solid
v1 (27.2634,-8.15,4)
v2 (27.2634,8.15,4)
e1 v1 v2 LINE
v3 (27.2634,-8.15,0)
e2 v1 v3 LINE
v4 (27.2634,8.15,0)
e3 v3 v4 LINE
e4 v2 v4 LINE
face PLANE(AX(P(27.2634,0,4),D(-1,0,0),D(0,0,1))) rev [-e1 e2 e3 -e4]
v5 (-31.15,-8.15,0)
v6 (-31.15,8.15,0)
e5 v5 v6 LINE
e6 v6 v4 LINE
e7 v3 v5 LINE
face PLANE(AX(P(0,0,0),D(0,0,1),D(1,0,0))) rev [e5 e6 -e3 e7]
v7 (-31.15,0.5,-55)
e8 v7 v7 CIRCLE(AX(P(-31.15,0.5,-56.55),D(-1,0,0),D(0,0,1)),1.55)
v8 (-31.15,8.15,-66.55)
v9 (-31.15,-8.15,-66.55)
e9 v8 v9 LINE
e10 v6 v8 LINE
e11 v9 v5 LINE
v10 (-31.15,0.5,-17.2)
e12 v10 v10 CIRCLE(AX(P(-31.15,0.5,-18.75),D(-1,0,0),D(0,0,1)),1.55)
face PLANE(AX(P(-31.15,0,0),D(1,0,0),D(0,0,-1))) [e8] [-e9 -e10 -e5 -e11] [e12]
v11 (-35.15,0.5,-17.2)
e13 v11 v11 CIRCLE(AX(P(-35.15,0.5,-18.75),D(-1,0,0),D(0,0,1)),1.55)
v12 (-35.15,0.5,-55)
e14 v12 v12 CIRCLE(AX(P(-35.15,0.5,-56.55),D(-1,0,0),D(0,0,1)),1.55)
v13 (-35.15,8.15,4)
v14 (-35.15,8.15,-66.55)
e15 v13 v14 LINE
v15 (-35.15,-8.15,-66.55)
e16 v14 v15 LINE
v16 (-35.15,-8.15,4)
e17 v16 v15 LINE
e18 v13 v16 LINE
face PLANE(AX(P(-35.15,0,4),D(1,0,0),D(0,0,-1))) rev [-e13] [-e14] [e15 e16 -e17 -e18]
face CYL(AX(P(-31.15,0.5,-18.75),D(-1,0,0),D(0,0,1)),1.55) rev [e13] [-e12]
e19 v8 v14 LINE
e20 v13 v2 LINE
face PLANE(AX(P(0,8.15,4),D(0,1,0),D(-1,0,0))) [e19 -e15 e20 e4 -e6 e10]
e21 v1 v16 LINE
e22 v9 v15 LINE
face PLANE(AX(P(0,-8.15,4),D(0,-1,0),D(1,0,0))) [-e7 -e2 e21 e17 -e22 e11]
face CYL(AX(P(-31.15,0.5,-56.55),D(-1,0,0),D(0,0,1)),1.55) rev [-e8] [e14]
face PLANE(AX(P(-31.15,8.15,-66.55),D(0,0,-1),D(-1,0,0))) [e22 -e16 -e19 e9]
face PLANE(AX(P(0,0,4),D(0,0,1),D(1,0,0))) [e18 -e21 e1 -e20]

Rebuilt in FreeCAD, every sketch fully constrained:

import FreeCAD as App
import Part
import Sketcher

V = App.Vector
Q = App.Units.Quantity

doc = App.newDocument("Part")
params = doc.addObject("Spreadsheet::Sheet", "Params")
for row, (alias, value) in enumerate([
    ("sketch1_height", "16.3 mm"),
    ("pad1_length", "4 mm"),
    ("sketch2_diameter", "3.1 mm"),
    ("sketch2_width", "16.3 mm"),
    ("sketch2_height", "70.55 mm"),
    ("pad2_length", "4 mm"),
], start=1):
    params.set(f"A{row}", alias)
    params.set(f"B{row}", "=" + value)
    params.setAlias(f"B{row}", alias)

body = doc.addObject("PartDesign::Body", "Body")

# Sketch on XY plane
sketch1 = body.newObject("Sketcher::SketchObject", "Sketch")
sketch1.AttachmentSupport = (doc.getObject("XY_Plane"), [""])
sketch1.MapMode = "FlatFace"
sketch1.addGeometry([
    Part.LineSegment(V(-35.15, 8.15, 0), V(-35.15, -8.15, 0)),
    Part.LineSegment(V(-35.15, -8.15, 0), V(27.2634, -8.15, 0)),
    Part.LineSegment(V(27.2634, -8.15, 0), V(27.2634, 8.15, 0)),
    Part.LineSegment(V(27.2634, 8.15, 0), V(-35.15, 8.15, 0)),
], False)
sketch1.addConstraint([
    Sketcher.Constraint("Coincident", 0, 2, 1, 1),
    Sketcher.Constraint("Coincident", 1, 2, 2, 1),
    Sketcher.Constraint("Coincident", 2, 2, 3, 1),
    Sketcher.Constraint("Coincident", 3, 2, 0, 1),
    Sketcher.Constraint("Vertical", 0),
    Sketcher.Constraint("Horizontal", 1),
    Sketcher.Constraint("Vertical", 2),
    Sketcher.Constraint("Horizontal", 3),
    Sketcher.Constraint("DistanceY", 0, 2, 0, 1, Q("16.3 mm")),
    Sketcher.Constraint("DistanceX", 0, 2, -1, 1, Q("35.15 mm")),
    Sketcher.Constraint("DistanceY", 0, 2, -1, 1, Q("8.15 mm")),
    Sketcher.Constraint("DistanceX", 1, 1, 1, 2, Q("62.4134 mm")),
])
sketch1.setExpression("Constraints[8]", "Params.sketch1_height")
pad1 = body.newObject("PartDesign::Pad", "Pad")
pad1.Profile = sketch1
pad1.setExpression("Length", "Params.pad1_length")

# Sketch on YZ plane
sketch2 = body.newObject("Sketcher::SketchObject", "Sketch001")
sketch2.AttachmentSupport = (doc.getObject("YZ_Plane"), [""])
sketch2.MapMode = "FlatFace"
sketch2.AttachmentOffset = App.Placement(V(0, 0, -35.15), App.Rotation())
sketch2.addGeometry([
    Part.LineSegment(V(8.15, -66.55, 0), V(-8.15, -66.55, 0)),  # 0
    Part.LineSegment(V(-8.15, -66.55, 0), V(-8.15, 4, 0)),  # 1
    Part.LineSegment(V(-8.15, 4, 0), V(8.15, 4, 0)),  # 2
    Part.LineSegment(V(8.15, 4, 0), V(8.15, -66.55, 0)),  # 3
    Part.Circle(V(0.5, -56.55, 0), V(0, 0, 1), 1.55),  # 4
    Part.Circle(V(0.5, -18.75, 0), V(0, 0, 1), 1.55),  # 5
], False)
sketch2.addConstraint([
    Sketcher.Constraint("Coincident", 0, 2, 1, 1),
    Sketcher.Constraint("Coincident", 1, 2, 2, 1),
    Sketcher.Constraint("Coincident", 2, 2, 3, 1),
    Sketcher.Constraint("Coincident", 3, 2, 0, 1),
    Sketcher.Constraint("Horizontal", 0),
    Sketcher.Constraint("Vertical", 1),
    Sketcher.Constraint("Horizontal", 2),
    Sketcher.Constraint("Vertical", 3),
    Sketcher.Constraint("Equal", 4, 5),
    Sketcher.Constraint("Vertical", 4, 3, 5, 3),
    Sketcher.Constraint("Diameter", 4, Q("3.1 mm")),
    Sketcher.Constraint("DistanceX", 0, 2, 0, 1, Q("16.3 mm")),
    Sketcher.Constraint("DistanceY", -1, 1, 1, 2, Q("4 mm")),
    Sketcher.Constraint("DistanceY", 0, 2, 4, 3, Q("10 mm")),
    Sketcher.Constraint("DistanceY", 1, 1, 1, 2, Q("70.55 mm")),
    Sketcher.Constraint("DistanceX", -1, 1, 4, 3, Q("0.5 mm")),
    Sketcher.Constraint("DistanceY", 4, 3, 5, 3, Q("37.8 mm")),
    Sketcher.Constraint("DistanceX", 0, 2, -1, 1, Q("8.15 mm")),
])
sketch2.setExpression("Constraints[10]", "Params.sketch2_diameter")
sketch2.setExpression("Constraints[11]", "Params.sketch2_width")
sketch2.setExpression("Constraints[14]", "Params.sketch2_height")
pad2 = body.newObject("PartDesign::Pad", "Pad001")
pad2.Profile = sketch2
pad2.setExpression("Length", "Params.pad2_length")

doc.recompute()
